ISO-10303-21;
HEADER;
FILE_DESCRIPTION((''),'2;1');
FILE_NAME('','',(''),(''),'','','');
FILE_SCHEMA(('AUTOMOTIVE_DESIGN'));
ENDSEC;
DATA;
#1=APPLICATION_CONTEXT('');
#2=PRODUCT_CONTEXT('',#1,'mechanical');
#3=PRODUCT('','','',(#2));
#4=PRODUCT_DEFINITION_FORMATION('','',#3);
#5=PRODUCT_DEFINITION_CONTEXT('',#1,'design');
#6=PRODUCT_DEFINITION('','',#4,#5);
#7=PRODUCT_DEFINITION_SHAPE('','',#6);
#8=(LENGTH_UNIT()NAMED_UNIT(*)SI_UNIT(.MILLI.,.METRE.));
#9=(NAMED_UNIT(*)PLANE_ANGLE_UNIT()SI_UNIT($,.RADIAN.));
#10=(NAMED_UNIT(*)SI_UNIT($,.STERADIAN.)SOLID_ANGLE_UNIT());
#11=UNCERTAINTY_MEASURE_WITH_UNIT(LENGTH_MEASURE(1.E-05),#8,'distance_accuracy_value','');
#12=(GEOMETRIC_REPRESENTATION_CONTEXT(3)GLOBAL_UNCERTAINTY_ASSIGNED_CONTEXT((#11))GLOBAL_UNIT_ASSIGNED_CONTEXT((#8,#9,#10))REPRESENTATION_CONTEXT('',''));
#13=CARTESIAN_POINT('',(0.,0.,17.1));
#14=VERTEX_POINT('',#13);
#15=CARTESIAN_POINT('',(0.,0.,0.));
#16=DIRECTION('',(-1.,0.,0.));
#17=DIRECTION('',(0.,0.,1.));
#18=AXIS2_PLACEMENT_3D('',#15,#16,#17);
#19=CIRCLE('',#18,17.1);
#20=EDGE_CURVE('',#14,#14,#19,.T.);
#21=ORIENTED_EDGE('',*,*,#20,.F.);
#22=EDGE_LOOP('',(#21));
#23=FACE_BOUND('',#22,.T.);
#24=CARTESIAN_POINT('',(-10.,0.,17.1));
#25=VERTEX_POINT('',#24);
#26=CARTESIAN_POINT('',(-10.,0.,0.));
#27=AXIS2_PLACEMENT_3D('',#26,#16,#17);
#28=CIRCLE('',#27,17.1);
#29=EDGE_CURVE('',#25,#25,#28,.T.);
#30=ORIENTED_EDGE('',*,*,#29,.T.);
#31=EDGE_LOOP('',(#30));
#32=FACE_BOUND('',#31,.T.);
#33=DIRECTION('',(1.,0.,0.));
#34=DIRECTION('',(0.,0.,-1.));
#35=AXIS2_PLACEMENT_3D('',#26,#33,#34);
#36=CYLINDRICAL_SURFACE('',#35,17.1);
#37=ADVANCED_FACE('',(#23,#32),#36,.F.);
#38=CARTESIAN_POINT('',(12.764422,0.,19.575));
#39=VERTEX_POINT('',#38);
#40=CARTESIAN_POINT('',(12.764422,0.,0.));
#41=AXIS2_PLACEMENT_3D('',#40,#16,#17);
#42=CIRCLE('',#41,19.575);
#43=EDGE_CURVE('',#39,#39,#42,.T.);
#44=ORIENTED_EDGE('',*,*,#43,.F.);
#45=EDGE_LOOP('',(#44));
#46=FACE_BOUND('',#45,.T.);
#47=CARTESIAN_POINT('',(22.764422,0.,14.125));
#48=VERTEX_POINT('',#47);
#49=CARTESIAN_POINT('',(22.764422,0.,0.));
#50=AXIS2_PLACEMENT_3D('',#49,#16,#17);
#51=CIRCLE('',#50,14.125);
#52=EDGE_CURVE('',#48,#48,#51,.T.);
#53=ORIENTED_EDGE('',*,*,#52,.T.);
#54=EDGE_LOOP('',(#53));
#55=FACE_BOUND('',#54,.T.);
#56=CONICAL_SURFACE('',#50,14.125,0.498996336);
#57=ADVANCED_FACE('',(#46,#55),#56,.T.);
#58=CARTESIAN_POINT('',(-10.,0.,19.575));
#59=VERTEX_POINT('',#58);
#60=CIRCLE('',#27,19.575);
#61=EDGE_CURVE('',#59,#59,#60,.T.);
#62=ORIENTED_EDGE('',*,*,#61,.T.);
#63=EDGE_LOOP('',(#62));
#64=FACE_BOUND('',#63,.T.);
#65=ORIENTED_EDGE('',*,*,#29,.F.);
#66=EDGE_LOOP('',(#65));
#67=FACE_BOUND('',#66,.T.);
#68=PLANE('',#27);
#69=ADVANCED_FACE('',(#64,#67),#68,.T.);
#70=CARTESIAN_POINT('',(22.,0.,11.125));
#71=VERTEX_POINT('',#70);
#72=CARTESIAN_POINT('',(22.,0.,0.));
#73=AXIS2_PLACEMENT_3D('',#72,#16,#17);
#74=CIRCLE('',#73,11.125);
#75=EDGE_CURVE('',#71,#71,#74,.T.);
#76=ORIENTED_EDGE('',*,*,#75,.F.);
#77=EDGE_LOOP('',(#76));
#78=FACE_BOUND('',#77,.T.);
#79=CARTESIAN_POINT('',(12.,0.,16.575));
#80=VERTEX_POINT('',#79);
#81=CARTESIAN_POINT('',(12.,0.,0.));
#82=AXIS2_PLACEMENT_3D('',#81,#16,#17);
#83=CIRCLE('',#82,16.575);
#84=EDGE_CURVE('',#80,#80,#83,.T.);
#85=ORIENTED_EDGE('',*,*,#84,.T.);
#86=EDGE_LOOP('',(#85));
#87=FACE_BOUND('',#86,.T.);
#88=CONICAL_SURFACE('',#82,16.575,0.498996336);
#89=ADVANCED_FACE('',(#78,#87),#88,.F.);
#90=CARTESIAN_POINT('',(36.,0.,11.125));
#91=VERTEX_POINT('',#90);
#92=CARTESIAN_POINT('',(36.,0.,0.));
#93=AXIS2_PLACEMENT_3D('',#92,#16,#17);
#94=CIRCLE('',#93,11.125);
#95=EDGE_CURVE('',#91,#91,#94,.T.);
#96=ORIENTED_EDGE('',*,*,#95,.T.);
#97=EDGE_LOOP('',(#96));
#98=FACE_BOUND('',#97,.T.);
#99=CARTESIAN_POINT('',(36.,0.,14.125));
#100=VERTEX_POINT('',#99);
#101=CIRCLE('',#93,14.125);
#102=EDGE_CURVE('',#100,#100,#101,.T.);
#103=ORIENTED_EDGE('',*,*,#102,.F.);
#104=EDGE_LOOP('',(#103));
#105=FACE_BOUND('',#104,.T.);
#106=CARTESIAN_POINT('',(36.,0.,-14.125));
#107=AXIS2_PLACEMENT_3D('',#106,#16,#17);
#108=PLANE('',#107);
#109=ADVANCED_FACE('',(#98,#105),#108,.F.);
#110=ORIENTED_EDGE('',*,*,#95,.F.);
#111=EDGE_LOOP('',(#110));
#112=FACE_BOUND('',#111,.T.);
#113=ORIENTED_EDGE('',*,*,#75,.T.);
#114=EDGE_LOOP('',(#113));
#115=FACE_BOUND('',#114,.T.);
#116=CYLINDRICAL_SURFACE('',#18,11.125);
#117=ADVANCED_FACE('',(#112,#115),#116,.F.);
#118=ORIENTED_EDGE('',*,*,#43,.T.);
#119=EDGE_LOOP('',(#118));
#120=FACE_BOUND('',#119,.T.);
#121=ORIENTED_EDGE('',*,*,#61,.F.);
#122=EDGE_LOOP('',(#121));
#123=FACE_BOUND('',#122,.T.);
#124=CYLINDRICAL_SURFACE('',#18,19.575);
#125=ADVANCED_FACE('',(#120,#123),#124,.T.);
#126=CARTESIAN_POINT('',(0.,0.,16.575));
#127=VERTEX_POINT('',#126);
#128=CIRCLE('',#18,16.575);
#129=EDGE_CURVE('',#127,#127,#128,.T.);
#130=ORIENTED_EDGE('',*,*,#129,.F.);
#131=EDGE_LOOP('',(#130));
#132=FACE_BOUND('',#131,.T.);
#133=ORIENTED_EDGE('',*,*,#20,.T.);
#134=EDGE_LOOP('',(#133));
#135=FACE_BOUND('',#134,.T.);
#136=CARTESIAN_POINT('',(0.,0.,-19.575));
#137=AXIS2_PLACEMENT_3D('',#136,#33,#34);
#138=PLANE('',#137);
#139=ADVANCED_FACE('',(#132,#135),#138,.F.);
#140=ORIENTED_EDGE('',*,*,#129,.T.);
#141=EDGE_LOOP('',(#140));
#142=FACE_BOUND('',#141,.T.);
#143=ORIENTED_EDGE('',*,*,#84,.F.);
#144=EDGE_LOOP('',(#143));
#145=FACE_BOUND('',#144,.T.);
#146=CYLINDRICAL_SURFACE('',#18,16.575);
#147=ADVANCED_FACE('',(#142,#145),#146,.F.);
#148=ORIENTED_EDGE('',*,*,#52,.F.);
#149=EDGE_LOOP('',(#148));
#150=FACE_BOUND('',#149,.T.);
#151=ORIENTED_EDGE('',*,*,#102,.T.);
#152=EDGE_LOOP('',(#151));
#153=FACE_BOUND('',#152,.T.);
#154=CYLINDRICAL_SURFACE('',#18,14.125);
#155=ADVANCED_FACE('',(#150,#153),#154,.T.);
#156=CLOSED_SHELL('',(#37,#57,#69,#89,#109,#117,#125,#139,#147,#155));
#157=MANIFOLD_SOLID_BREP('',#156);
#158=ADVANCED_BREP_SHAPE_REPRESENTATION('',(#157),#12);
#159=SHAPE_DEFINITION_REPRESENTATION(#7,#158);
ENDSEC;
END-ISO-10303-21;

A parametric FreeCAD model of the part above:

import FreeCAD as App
import Part
import Sketcher

V = App.Vector
Q = App.Units.Quantity

doc = App.newDocument("Part")
body = doc.addObject("PartDesign::Body", "Body")

# Sketch on XZ plane
sketch1 = body.newObject("Sketcher::SketchObject", "Sketch")
sketch1.AttachmentSupport = (doc.getObject("XZ_Plane"), [""])
sketch1.MapMode = "FlatFace"
sketch1.addGeometry([
    Part.LineSegment(V(0, -16.6, 0), V(12, -16.6, 0)),  # 0
    Part.LineSegment(V(12, -16.6, 0), V(22, -11.1, 0)),  # 1
    Part.LineSegment(V(22, -11.1, 0), V(36, -11.1, 0)),  # 2
    Part.LineSegment(V(36, -11.1, 0), V(36, -14.1, 0)),  # 3
    Part.LineSegment(V(36, -14.1, 0), V(22.8, -14.1, 0)),  # 4
    Part.LineSegment(V(22.8, -14.1, 0), V(12.8, -19.6, 0)),  # 5
    Part.LineSegment(V(12.8, -19.6, 0), V(0, -19.6, 0)),  # 6
    Part.LineSegment(V(0, -19.6, 0), V(0, -16.6, 0)),  # 7
], False)
sketch1.addConstraint([
    Sketcher.Constraint("Coincident", 0, 2, 1, 1),
    Sketcher.Constraint("Coincident", 1, 2, 2, 1),
    Sketcher.Constraint("Coincident", 2, 2, 3, 1),
    Sketcher.Constraint("Coincident", 3, 2, 4, 1),
    Sketcher.Constraint("Coincident", 4, 2, 5, 1),
    Sketcher.Constraint("Coincident", 5, 2, 6, 1),
    Sketcher.Constraint("Coincident", 6, 2, 7, 1),
    Sketcher.Constraint("Coincident", 7, 2, 0, 1),
    Sketcher.Constraint("Horizontal", 0),
    Sketcher.Constraint("Horizontal", 2),
    Sketcher.Constraint("Vertical", 3),
    Sketcher.Constraint("Horizontal", 4),
    Sketcher.Constraint("Horizontal", 6),
    Sketcher.Constraint("Vertical", 7),
    Sketcher.Constraint("PointOnObject", 6, 2, -2),
    Sketcher.Constraint("Parallel", 1, 5),
    Sketcher.Constraint("Equal", 3, 7),
    Sketcher.Constraint("DistanceX", 0, 1, 0, 2, Q("12 mm")),
    Sketcher.Constraint("DistanceX", 2, 1, 2, 2, Q("14 mm")),
    Sketcher.Constraint("DistanceY", 3, 2, 3, 1, Q("3 mm")),
    Sketcher.Constraint("DistanceX", -1, 1, 1, 2, Q("22 mm")),
    Sketcher.Constraint("DistanceY", 0, 2, 1, 2, Q("5.45 mm")),
    Sketcher.Constraint("DistanceY", 0, 2, -1, 1, Q("16.575 mm")),
    Sketcher.Constraint("DistanceX", 4, 2, 4, 1, Q("13.235578 mm")),
])
revolution = body.newObject("PartDesign::Revolution", "Revolution")
revolution.Profile = sketch1
revolution.ReferenceAxis = (sketch1, ["H_Axis"])
revolution.Angle = 360

# Sketch on YZ plane
sketch2 = body.newObject("Sketcher::SketchObject", "Sketch001")
sketch2.AttachmentSupport = (doc.getObject("YZ_Plane"), [""])
sketch2.MapMode = "FlatFace"
sketch2.AttachmentOffset = App.Placement(V(0, 0, -10), App.Rotation())
sketch2.addGeometry([
    Part.Circle(V(0, 0, 0), V(0, 0, 1), 20),
    Part.Circle(V(0, 0, 0), V(0, 0, 1), 17),
], False)
sketch2.addConstraint([
    Sketcher.Constraint("Coincident", 0, 3, -1, 1),
    Sketcher.Constraint("Coincident", 1, 3, -1, 1),
    Sketcher.Constraint("Diameter", 1, Q("34.2 mm")),
    Sketcher.Constraint("Diameter", 0, Q("39.15 mm")),
])
pad1 = body.newObject("PartDesign::Pad", "Pad")
pad1.Profile = sketch2
pad1.Length = 10

doc.recompute()
